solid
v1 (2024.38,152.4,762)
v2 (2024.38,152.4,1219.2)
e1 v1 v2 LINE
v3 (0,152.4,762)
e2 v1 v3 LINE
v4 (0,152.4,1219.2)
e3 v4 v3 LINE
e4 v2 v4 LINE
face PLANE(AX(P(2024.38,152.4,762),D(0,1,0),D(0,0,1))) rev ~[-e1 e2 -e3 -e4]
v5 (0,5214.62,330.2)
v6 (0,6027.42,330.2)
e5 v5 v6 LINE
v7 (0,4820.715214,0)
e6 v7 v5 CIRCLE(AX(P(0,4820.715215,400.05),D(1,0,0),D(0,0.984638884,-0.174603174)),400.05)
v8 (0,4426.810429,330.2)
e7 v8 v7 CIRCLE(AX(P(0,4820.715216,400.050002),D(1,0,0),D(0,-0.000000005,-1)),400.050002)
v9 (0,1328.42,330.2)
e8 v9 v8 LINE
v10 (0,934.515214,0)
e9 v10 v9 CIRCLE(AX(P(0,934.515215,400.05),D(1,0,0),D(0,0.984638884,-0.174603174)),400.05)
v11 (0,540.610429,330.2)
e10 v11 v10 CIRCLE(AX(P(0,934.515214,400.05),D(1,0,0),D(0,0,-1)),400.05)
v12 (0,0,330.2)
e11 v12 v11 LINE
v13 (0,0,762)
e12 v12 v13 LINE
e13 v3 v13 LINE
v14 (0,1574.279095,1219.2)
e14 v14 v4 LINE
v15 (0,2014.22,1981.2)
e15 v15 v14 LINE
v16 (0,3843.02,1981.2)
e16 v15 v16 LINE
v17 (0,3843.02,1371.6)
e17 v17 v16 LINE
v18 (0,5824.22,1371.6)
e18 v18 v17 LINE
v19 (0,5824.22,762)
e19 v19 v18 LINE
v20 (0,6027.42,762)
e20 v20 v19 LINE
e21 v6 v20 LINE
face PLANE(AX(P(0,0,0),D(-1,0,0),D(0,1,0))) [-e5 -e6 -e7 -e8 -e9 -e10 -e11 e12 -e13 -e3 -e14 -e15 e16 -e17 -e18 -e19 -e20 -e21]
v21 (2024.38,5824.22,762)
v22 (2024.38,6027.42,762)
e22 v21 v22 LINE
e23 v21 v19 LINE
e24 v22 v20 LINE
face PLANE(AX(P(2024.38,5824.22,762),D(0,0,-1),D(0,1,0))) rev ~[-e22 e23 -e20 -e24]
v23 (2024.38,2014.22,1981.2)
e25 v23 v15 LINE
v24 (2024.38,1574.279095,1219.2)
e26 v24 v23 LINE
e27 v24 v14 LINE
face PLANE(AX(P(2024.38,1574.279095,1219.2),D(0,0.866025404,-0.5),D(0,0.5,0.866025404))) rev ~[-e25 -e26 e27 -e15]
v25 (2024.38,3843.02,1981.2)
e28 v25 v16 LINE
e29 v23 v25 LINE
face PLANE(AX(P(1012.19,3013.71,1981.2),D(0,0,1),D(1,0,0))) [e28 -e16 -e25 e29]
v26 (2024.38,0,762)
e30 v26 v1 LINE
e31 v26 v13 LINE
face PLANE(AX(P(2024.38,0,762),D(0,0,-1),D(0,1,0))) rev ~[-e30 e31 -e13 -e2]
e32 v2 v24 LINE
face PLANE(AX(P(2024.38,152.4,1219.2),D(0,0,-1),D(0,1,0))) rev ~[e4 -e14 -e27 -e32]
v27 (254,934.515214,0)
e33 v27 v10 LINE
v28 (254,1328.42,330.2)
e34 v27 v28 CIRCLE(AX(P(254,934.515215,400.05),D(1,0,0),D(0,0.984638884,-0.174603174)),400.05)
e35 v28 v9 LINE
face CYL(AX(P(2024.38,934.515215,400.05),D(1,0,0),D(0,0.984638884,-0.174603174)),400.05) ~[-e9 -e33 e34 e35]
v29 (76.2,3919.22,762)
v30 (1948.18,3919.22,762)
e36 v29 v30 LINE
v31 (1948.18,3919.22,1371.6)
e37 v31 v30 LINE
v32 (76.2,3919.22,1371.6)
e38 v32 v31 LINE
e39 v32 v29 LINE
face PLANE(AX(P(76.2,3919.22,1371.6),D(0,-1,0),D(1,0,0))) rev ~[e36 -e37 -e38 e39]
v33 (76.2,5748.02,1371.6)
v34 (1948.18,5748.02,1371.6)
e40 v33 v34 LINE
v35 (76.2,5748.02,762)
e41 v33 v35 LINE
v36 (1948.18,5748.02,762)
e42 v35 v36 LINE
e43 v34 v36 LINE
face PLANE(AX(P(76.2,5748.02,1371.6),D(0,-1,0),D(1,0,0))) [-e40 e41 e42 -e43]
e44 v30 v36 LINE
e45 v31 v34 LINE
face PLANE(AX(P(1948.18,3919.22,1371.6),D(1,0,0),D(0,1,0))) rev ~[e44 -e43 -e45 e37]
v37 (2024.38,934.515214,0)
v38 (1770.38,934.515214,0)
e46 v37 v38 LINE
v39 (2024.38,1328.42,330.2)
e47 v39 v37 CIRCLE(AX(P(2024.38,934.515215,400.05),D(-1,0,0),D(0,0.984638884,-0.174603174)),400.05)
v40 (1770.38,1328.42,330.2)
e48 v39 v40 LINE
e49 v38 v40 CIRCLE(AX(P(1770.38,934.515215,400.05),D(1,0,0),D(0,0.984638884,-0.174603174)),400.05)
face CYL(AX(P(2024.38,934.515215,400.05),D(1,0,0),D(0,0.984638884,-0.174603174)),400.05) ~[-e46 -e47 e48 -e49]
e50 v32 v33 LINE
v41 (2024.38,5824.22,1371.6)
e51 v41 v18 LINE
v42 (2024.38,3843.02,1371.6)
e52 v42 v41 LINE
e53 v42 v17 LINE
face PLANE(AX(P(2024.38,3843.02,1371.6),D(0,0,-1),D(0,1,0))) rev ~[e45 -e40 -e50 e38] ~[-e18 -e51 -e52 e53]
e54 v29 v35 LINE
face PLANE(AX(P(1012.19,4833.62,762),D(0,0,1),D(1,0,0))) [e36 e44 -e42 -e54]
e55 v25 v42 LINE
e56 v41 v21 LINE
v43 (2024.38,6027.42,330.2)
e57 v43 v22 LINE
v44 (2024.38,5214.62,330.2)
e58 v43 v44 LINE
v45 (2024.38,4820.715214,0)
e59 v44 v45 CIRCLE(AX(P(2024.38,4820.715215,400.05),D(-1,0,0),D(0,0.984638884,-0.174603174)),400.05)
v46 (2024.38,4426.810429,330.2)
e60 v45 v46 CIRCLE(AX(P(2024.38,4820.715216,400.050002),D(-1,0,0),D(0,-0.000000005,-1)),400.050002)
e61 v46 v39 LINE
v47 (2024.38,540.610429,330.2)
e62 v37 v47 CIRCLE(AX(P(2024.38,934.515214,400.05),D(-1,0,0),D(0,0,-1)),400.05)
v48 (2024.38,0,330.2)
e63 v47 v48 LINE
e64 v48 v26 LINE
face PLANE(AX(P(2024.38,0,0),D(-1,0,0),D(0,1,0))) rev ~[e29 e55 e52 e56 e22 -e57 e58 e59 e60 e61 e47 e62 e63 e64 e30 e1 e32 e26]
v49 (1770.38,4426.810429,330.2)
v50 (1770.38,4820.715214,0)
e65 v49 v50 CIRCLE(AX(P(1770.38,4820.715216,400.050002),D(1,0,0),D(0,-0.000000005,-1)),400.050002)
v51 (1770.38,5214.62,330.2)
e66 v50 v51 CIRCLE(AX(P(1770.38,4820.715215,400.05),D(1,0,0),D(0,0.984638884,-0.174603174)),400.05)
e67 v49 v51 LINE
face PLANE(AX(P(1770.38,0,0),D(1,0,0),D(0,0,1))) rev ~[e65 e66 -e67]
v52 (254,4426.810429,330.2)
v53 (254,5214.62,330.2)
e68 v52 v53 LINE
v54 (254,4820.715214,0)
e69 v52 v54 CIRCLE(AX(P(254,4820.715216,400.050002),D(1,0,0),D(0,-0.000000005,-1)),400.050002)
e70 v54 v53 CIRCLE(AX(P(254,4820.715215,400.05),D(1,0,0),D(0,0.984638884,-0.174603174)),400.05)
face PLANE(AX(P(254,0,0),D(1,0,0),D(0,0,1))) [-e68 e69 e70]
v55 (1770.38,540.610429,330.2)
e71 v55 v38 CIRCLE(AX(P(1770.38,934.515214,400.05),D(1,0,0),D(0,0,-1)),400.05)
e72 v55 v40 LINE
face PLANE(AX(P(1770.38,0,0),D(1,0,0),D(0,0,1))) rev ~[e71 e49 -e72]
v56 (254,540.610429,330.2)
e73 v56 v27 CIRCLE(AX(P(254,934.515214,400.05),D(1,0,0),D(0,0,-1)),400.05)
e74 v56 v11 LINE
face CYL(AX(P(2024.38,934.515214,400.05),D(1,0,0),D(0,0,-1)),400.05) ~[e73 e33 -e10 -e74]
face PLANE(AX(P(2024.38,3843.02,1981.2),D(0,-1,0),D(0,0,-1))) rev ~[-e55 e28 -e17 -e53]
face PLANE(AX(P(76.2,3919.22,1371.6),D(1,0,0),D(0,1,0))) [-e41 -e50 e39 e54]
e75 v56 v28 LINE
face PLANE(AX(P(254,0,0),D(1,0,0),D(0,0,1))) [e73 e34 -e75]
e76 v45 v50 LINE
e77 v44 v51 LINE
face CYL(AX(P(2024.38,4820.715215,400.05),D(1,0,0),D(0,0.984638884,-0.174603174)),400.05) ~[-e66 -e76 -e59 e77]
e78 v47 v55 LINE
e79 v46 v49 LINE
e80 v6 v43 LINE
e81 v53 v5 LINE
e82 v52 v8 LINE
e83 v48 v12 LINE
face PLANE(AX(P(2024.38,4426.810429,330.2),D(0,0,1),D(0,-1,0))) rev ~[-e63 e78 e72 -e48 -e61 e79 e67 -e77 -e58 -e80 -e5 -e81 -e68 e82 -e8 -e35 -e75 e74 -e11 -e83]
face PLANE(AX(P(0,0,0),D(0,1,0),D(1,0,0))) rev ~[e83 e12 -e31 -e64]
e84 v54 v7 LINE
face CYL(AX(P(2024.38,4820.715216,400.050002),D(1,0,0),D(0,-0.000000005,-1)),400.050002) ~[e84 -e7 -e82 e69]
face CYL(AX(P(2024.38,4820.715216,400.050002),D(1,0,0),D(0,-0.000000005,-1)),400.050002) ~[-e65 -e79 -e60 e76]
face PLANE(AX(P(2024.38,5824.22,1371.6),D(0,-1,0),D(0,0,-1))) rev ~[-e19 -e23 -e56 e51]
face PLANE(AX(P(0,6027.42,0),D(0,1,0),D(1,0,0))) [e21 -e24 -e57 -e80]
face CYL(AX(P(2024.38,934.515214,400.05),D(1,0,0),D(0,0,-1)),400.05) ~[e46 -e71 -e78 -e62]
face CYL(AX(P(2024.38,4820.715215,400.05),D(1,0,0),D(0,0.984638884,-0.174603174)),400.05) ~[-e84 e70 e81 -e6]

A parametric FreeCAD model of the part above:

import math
import FreeCAD as App
import Part
import Sketcher
Q = App.Units.Quantity

doc = App.newDocument("Part")
body = doc.addObject("PartDesign::Body", "Body")

# Sketch on XY plane
sketch1 = doc.addObject("Sketcher::SketchObject", "Sketch")
body.addObject(sketch1)
sketch1.AttachmentSupport = (doc.XY_Plane, [""])
sketch1.MapMode = "FlatFace"
sketch1.addGeometry([
    Part.LineSegment(App.Vector(0, 6027, 0), App.Vector(0, 0, 0)),
    Part.LineSegment(App.Vector(0, 0, 0), App.Vector(2024, 0, 0)),
    Part.LineSegment(App.Vector(2024, 0, 0), App.Vector(2024, 6027, 0)),
    Part.LineSegment(App.Vector(2024, 6027, 0), App.Vector(0, 6027, 0)),
], False)
sketch1.addConstraint([
    Sketcher.Constraint("Coincident", 0, 2, 1, 1),
    Sketcher.Constraint("Coincident", 1, 2, 2, 1),
    Sketcher.Constraint("Coincident", 2, 2, 3, 1),
    Sketcher.Constraint("Coincident", 3, 2, 0, 1),
    Sketcher.Constraint("Vertical", 0),
    Sketcher.Constraint("Horizontal", 1),
    Sketcher.Constraint("Vertical", 2),
    Sketcher.Constraint("Horizontal", 3),
    Sketcher.Constraint("Coincident", 0, 2, -1, 1),
    Sketcher.Constraint("DistanceX", 1, 1, 1, 2, Q("79.7 in")),
    Sketcher.Constraint("DistanceY", 0, 2, 0, 1, Q("237.3 in")),
])
pad1 = doc.addObject("PartDesign::Pad", "Pad")
body.addObject(pad1)
pad1.Profile = sketch1
pad1.Length = Q("78 in")

# Sketch on YZ plane
sketch2 = doc.addObject("Sketcher::SketchObject", "Sketch001")
body.addObject(sketch2)
sketch2.AttachmentSupport = (doc.YZ_Plane, [""])
sketch2.MapMode = "FlatFace"
sketch2.AttachmentOffset = App.Placement(App.Vector(0, 0, 79.7 * 25.4), App.Rotation())
sketch2.addGeometry([
    Part.LineSegment(App.Vector(5824, 762, 0), App.Vector(6027, 762, 0)),  # 0
    Part.LineSegment(App.Vector(6027, 762, 0), App.Vector(6027, 1981, 0)),  # 1
    Part.LineSegment(App.Vector(6027, 1981, 0), App.Vector(3843, 1981, 0)),  # 2
    Part.LineSegment(App.Vector(3843, 1981, 0), App.Vector(3843, 1372, 0)),  # 3
    Part.LineSegment(App.Vector(3843, 1372, 0), App.Vector(5824, 1372, 0)),  # 4
    Part.LineSegment(App.Vector(5824, 1372, 0), App.Vector(5824, 762, 0)),  # 5
    Part.LineSegment(App.Vector(1574, 1219, 0), App.Vector(2014, 1981, 0)),  # 6
    Part.LineSegment(App.Vector(2014, 1981, 0), App.Vector(0, 1981, 0)),  # 7
    Part.LineSegment(App.Vector(0, 1981, 0), App.Vector(0, 762, 0)),  # 8
    Part.LineSegment(App.Vector(0, 762, 0), App.Vector(152, 762, 0)),  # 9
    Part.LineSegment(App.Vector(152, 762, 0), App.Vector(152, 1219, 0)),  # 10
    Part.LineSegment(App.Vector(152, 1219, 0), App.Vector(1574, 1219, 0)),  # 11
], False)
sketch2.addConstraint([
    Sketcher.Constraint("Coincident", 0, 2, 1, 1),
    Sketcher.Constraint("Coincident", 1, 2, 2, 1),
    Sketcher.Constraint("Coincident", 2, 2, 3, 1),
    Sketcher.Constraint("Coincident", 3, 2, 4, 1),
    Sketcher.Constraint("Coincident", 4, 2, 5, 1),
    Sketcher.Constraint("Coincident", 5, 2, 0, 1),
    Sketcher.Constraint("Coincident", 6, 2, 7, 1),
    Sketcher.Constraint("Coincident", 7, 2, 8, 1),
    Sketcher.Constraint("Coincident", 8, 2, 9, 1),
    Sketcher.Constraint("Coincident", 9, 2, 10, 1),
    Sketcher.Constraint("Coincident", 10, 2, 11, 1),
    Sketcher.Constraint("Coincident", 11, 2, 6, 1),
    Sketcher.Constraint("Horizontal", 0),
    Sketcher.Constraint("Vertical", 1),
    Sketcher.Constraint("Horizontal", 2),
    Sketcher.Constraint("Vertical", 3),
    Sketcher.Constraint("Horizontal", 4),
    Sketcher.Constraint("Vertical", 5),
    Sketcher.Constraint("Horizontal", 7),
    Sketcher.Constraint("Vertical", 8),
    Sketcher.Constraint("Horizontal", 9),
    Sketcher.Constraint("Vertical", 10),
    Sketcher.Constraint("Horizontal", 11),
    Sketcher.Constraint("PointOnObject", 7, 2, -2),
    Sketcher.Constraint("Horizontal", 2, 2, 6, 2),
    Sketcher.Constraint("Horizontal", 5, 2, 8, 2),
    Sketcher.Constraint("Equal", 3, 5),
    Sketcher.Constraint("DistanceX", 0, 1, 0, 2, Q("8 in")),
    Sketcher.Constraint("DistanceX", 2, 2, 2, 1, Q("86 in")),
    Sketcher.Constraint("DistanceX", 9, 1, 9, 2, Q("6 in")),
    Sketcher.Constraint("DistanceY", 1, 1, 1, 2, Q("48 in")),
    Sketcher.Constraint("DistanceY", 10, 1, 10, 2, Q("18 in")),
    Sketcher.Constraint("DistanceX", 7, 2, 7, 1, Q("79.3 in")),
    Sketcher.Constraint("DistanceY", -1, 1, 0, 2, Q("30 in")),
    Sketcher.Constraint("Angle", 6, Q("60 deg")),
    Sketcher.Constraint("DistanceX", 6, 2, 2, 2, Q("72 in")),
])
pocket1 = doc.addObject("PartDesign::Pocket", "Pocket")
body.addObject(pocket1)
pocket1.Profile = sketch2
pocket1.Type = "ThroughAll"

# Sketch on XZ plane
sketch3 = doc.addObject("Sketcher::SketchObject", "Sketch002")
body.addObject(sketch3)
sketch3.AttachmentSupport = (doc.XZ_Plane, [""])
sketch3.MapMode = "FlatFace"
sketch3.addGeometry([
    Part.LineSegment(App.Vector(254, 330, 0), App.Vector(254, 0, 0)),
    Part.LineSegment(App.Vector(254, 0, 0), App.Vector(1770, 0, 0)),
    Part.LineSegment(App.Vector(1770, 0, 0), App.Vector(1770, 330, 0)),
    Part.LineSegment(App.Vector(1770, 330, 0), App.Vector(254, 330, 0)),
], False)
sketch3.addConstraint([
    Sketcher.Constraint("Coincident", 0, 2, 1, 1),
    Sketcher.Constraint("Coincident", 1, 2, 2, 1),
    Sketcher.Constraint("Coincident", 2, 2, 3, 1),
    Sketcher.Constraint("Coincident", 3, 2, 0, 1),
    Sketcher.Constraint("Vertical", 0),
    Sketcher.Constraint("Horizontal", 1),
    Sketcher.Constraint("Vertical", 2),
    Sketcher.Constraint("Horizontal", 3),
    Sketcher.Constraint("PointOnObject", 0, 2, -1),
    Sketcher.Constraint("DistanceY", 0, 2, 0, 1, Q("13 in")),
    Sketcher.Constraint("DistanceX", 1, 1, 1, 2, Q("59.7 in")),
    Sketcher.Constraint("DistanceX", -1, 1, 0, 2, Q("10 in")),
])
pocket2 = doc.addObject("PartDesign::Pocket", "Pocket001")
body.addObject(pocket2)
pocket2.Profile = sketch3
pocket2.Type = "ThroughAll"

# Sketch on YZ plane
sketch4 = doc.addObject("Sketcher::SketchObject", "Sketch003")
body.addObject(sketch4)
sketch4.AttachmentSupport = (doc.YZ_Plane, [""])
sketch4.MapMode = "FlatFace"
sketch4.AttachmentOffset = App.Placement(App.Vector(0, 0, 79.7 * 25.4), App.Rotation())
sketch4.addGeometry([
    Part.ArcOfCircle(Part.Circle(App.Vector(4821, 400, 0), App.Vector(0, 0, 1), 400), math.radians(-90), math.radians(-10)),  # 0
    Part.LineSegment(App.Vector(4821, 0, 0), App.Vector(6027, 0, 0)),  # 1
    Part.LineSegment(App.Vector(6027, 0, 0), App.Vector(6027, 330, 0)),  # 2
    Part.LineSegment(App.Vector(6027, 330, 0), App.Vector(5215, 330, 0)),  # 3
    Part.ArcOfCircle(Part.Circle(App.Vector(935, 400, 0), App.Vector(0, 0, 1), 400), math.radians(-90), math.radians(-10)),  # 4
    Part.LineSegment(App.Vector(935, 0, 0), App.Vector(4821, 0, 0)),  # 5
    Part.ArcOfCircle(Part.Circle(App.Vector(4821, 400, 0), App.Vector(0, 0, 1), 400), math.radians(-170), math.radians(-90)),  # 6
    Part.LineSegment(App.Vector(4427, 330, 0), App.Vector(1328, 330, 0)),  # 7
    Part.LineSegment(App.Vector(541, 330, 0), App.Vector(0, 330, 0)),  # 8
    Part.LineSegment(App.Vector(0, 330, 0), App.Vector(0, 0, 0)),  # 9
    Part.LineSegment(App.Vector(0, 0, 0), App.Vector(935, 0, 0)),  # 10
    Part.ArcOfCircle(Part.Circle(App.Vector(935, 400, 0), App.Vector(0, 0, 1), 400), math.radians(-170), math.radians(-90)),  # 11
], False)
sketch4.addConstraint([
    Sketcher.Constraint("Tangent", 0, 1, 1, 1),
    Sketcher.Constraint("Coincident", 1, 2, 2, 1),
    Sketcher.Constraint("Coincident", 2, 2, 3, 1),
    Sketcher.Constraint("Coincident", 3, 2, 0, 2),
    Sketcher.Constraint("Tangent", 4, 1, 5, 1),
    Sketcher.Constraint("Tangent", 5, 2, 6, 2),
    Sketcher.Constraint("Coincident", 6, 1, 7, 1),
    Sketcher.Constraint("Coincident", 7, 2, 4, 2),
    Sketcher.Constraint("Coincident", 8, 2, 9, 1),
    Sketcher.Constraint("Coincident", 9, 2, 10, 1),
    Sketcher.Constraint("Tangent", 10, 2, 11, 2),
    Sketcher.Constraint("Coincident", 11, 1, 8, 1),
    Sketcher.Constraint("Horizontal", 1),
    Sketcher.Constraint("Vertical", 2),
    Sketcher.Constraint("Horizontal", 3),
    Sketcher.Constraint("Horizontal", 5),
    Sketcher.Constraint("Horizontal", 7),
    Sketcher.Constraint("Horizontal", 8),
    Sketcher.Constraint("Vertical", 9),
    Sketcher.Constraint("Horizontal", 10),
    Sketcher.Constraint("Coincident", 9, 2, -1, 1),
    Sketcher.Constraint("Coincident", 6, 3, 0, 3),
    Sketcher.Constraint("Coincident", 11, 3, 4, 3),
    Sketcher.Constraint("Equal", 0, 4),
    Sketcher.Constraint("Equal", 4, 11),
    Sketcher.Constraint("PointOnObject", 0, 1, -1),
    Sketcher.Constraint("Horizontal", 3, 2, 6, 1),
    Sketcher.Constraint("Horizontal", 7, 2, 8, 2),
    Sketcher.Constraint("DistanceX", 3, 2, 3, 1, Q("32 in")),
    Sketcher.Constraint("DistanceX", 5, 1, 5, 2, Q("153 in")),
    Sketcher.Constraint("DistanceY", 2, 1, 2, 2, Q("13 in")),
    Sketcher.Constraint("Radius", 0, Q("15.75 in")),
    Sketcher.Constraint("DistanceX", -1, 1, 1, 2, Q("237.3 in")),
])
pocket3 = doc.addObject("PartDesign::Pocket", "Pocket002")
body.addObject(pocket3)
pocket3.Profile = sketch4
pocket3.Type = "ThroughAll"

# Sketch on XY plane
sketch5 = doc.addObject("Sketcher::SketchObject", "Sketch004")
body.addObject(sketch5)
sketch5.AttachmentSupport = (doc.XY_Plane, [""])
sketch5.MapMode = "FlatFace"
sketch5.AttachmentOffset = App.Placement(App.Vector(0, 0, 54 * 25.4), App.Rotation())
sketch5.addGeometry([
    Part.LineSegment(App.Vector(76, 5748, 0), App.Vector(76, 3919, 0)),
    Part.LineSegment(App.Vector(76, 3919, 0), App.Vector(1948, 3919, 0)),
    Part.LineSegment(App.Vector(1948, 3919, 0), App.Vector(1948, 5748, 0)),
    Part.LineSegment(App.Vector(1948, 5748, 0), App.Vector(76, 5748, 0)),
], False)
sketch5.addConstraint([
    Sketcher.Constraint("Coincident", 0, 2, 1, 1),
    Sketcher.Constraint("Coincident", 1, 2, 2, 1),
    Sketcher.Constraint("Coincident", 2, 2, 3, 1),
    Sketcher.Constraint("Coincident", 3, 2, 0, 1),
    Sketcher.Constraint("Vertical", 0),
    Sketcher.Constraint("Horizontal", 1),
    Sketcher.Constraint("Vertical", 2),
    Sketcher.Constraint("Horizontal", 3),
    Sketcher.Constraint("DistanceY", 0, 2, 0, 1, Q("72 in")),
    Sketcher.Constraint("DistanceX", 1, 1, 1, 2, Q("73.7 in")),
    Sketcher.Constraint("DistanceX", -1, 1, 0, 2, Q("3 in")),
    Sketcher.Constraint("DistanceY", -1, 1, 0, 2, Q("154.3 in")),
])
pocket4 = doc.addObject("PartDesign::Pocket", "Pocket003")
body.addObject(pocket4)
pocket4.Profile = sketch5
pocket4.Length = Q("24 in")

doc.recompute()
